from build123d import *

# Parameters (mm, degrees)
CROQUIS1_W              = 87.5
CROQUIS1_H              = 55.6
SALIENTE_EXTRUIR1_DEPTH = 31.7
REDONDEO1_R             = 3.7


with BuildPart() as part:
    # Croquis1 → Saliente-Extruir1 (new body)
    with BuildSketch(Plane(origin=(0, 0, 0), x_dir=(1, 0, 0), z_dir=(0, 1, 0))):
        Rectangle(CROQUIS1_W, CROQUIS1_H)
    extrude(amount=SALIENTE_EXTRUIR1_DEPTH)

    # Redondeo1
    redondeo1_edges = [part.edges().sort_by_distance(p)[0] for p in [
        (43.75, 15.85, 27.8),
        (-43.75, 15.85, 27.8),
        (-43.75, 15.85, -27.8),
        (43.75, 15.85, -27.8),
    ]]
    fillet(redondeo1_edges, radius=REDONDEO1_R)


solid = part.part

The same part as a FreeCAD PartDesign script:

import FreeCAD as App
import Part
import Sketcher

V = App.Vector


def edges_at(feature, points):
    """Names of the edges that pass closest to the given points."""
    edges = feature.Shape.Edges
    near = lambda p: min(range(len(edges)), key=lambda i: edges[i].distToShape(Part.Vertex(*p))[0])
    return sorted({f"Edge{near(p) + 1}" for p in points})

doc = App.newDocument("Part")
body = doc.addObject("PartDesign::Body", "Body")

sketch1 = body.newObject("Sketcher::SketchObject", "Sketch")
sketch1.AttachmentSupport = (doc.getObject("XZ_Plane"), [""])
sketch1.MapMode = "FlatFace"
sketch1.addGeometry(Part.LineSegment(V(-44, -28, 0), V(-44, 28, 0)), False)
sketch1.addGeometry(Part.LineSegment(V(-44, 28, 0), V(44, 28, 0)), False)
sketch1.addGeometry(Part.LineSegment(V(44, 28, 0), V(44, -28, 0)), False)
sketch1.addGeometry(Part.LineSegment(V(44, -28, 0), V(-44, -28, 0)), False)
sketch1.addConstraint(Sketcher.Constraint("Coincident", 0, 2, 1, 1))
sketch1.addConstraint(Sketcher.Constraint("Coincident", 1, 2, 2, 1))
sketch1.addConstraint(Sketcher.Constraint("Coincident", 2, 2, 3, 1))
sketch1.addConstraint(Sketcher.Constraint("Coincident", 3, 2, 0, 1))
sketch1.addConstraint(Sketcher.Constraint("Vertical", 0))
sketch1.addConstraint(Sketcher.Constraint("Horizontal", 1))
sketch1.addConstraint(Sketcher.Constraint("Vertical", 2))
sketch1.addConstraint(Sketcher.Constraint("Horizontal", 3))
sketch1.addConstraint(Sketcher.Constraint("Symmetric", 0, 2, 2, 2, -1, 1))
sketch1.addConstraint(Sketcher.Constraint("DistanceX", 1, 1, 1, 2, 87.5))
sketch1.addConstraint(Sketcher.Constraint("DistanceY", 0, 1, 0, 2, 55.6))
pad1 = body.newObject("PartDesign::Pad", "Pad")
pad1.Profile = sketch1
pad1.Length = 31.7
pad1.Reversed = True
doc.recompute()

fillet = body.newObject("PartDesign::Fillet", "Fillet")
fillet.Base = (pad1, edges_at(pad1, [
    (43.75, 15.85, 27.8),
    (-43.75, 15.85, 27.8),
    (-43.75, 15.85, -27.8),
    (43.75, 15.85, -27.8),
]))
fillet.Radius = 3.7

doc.recompute()
